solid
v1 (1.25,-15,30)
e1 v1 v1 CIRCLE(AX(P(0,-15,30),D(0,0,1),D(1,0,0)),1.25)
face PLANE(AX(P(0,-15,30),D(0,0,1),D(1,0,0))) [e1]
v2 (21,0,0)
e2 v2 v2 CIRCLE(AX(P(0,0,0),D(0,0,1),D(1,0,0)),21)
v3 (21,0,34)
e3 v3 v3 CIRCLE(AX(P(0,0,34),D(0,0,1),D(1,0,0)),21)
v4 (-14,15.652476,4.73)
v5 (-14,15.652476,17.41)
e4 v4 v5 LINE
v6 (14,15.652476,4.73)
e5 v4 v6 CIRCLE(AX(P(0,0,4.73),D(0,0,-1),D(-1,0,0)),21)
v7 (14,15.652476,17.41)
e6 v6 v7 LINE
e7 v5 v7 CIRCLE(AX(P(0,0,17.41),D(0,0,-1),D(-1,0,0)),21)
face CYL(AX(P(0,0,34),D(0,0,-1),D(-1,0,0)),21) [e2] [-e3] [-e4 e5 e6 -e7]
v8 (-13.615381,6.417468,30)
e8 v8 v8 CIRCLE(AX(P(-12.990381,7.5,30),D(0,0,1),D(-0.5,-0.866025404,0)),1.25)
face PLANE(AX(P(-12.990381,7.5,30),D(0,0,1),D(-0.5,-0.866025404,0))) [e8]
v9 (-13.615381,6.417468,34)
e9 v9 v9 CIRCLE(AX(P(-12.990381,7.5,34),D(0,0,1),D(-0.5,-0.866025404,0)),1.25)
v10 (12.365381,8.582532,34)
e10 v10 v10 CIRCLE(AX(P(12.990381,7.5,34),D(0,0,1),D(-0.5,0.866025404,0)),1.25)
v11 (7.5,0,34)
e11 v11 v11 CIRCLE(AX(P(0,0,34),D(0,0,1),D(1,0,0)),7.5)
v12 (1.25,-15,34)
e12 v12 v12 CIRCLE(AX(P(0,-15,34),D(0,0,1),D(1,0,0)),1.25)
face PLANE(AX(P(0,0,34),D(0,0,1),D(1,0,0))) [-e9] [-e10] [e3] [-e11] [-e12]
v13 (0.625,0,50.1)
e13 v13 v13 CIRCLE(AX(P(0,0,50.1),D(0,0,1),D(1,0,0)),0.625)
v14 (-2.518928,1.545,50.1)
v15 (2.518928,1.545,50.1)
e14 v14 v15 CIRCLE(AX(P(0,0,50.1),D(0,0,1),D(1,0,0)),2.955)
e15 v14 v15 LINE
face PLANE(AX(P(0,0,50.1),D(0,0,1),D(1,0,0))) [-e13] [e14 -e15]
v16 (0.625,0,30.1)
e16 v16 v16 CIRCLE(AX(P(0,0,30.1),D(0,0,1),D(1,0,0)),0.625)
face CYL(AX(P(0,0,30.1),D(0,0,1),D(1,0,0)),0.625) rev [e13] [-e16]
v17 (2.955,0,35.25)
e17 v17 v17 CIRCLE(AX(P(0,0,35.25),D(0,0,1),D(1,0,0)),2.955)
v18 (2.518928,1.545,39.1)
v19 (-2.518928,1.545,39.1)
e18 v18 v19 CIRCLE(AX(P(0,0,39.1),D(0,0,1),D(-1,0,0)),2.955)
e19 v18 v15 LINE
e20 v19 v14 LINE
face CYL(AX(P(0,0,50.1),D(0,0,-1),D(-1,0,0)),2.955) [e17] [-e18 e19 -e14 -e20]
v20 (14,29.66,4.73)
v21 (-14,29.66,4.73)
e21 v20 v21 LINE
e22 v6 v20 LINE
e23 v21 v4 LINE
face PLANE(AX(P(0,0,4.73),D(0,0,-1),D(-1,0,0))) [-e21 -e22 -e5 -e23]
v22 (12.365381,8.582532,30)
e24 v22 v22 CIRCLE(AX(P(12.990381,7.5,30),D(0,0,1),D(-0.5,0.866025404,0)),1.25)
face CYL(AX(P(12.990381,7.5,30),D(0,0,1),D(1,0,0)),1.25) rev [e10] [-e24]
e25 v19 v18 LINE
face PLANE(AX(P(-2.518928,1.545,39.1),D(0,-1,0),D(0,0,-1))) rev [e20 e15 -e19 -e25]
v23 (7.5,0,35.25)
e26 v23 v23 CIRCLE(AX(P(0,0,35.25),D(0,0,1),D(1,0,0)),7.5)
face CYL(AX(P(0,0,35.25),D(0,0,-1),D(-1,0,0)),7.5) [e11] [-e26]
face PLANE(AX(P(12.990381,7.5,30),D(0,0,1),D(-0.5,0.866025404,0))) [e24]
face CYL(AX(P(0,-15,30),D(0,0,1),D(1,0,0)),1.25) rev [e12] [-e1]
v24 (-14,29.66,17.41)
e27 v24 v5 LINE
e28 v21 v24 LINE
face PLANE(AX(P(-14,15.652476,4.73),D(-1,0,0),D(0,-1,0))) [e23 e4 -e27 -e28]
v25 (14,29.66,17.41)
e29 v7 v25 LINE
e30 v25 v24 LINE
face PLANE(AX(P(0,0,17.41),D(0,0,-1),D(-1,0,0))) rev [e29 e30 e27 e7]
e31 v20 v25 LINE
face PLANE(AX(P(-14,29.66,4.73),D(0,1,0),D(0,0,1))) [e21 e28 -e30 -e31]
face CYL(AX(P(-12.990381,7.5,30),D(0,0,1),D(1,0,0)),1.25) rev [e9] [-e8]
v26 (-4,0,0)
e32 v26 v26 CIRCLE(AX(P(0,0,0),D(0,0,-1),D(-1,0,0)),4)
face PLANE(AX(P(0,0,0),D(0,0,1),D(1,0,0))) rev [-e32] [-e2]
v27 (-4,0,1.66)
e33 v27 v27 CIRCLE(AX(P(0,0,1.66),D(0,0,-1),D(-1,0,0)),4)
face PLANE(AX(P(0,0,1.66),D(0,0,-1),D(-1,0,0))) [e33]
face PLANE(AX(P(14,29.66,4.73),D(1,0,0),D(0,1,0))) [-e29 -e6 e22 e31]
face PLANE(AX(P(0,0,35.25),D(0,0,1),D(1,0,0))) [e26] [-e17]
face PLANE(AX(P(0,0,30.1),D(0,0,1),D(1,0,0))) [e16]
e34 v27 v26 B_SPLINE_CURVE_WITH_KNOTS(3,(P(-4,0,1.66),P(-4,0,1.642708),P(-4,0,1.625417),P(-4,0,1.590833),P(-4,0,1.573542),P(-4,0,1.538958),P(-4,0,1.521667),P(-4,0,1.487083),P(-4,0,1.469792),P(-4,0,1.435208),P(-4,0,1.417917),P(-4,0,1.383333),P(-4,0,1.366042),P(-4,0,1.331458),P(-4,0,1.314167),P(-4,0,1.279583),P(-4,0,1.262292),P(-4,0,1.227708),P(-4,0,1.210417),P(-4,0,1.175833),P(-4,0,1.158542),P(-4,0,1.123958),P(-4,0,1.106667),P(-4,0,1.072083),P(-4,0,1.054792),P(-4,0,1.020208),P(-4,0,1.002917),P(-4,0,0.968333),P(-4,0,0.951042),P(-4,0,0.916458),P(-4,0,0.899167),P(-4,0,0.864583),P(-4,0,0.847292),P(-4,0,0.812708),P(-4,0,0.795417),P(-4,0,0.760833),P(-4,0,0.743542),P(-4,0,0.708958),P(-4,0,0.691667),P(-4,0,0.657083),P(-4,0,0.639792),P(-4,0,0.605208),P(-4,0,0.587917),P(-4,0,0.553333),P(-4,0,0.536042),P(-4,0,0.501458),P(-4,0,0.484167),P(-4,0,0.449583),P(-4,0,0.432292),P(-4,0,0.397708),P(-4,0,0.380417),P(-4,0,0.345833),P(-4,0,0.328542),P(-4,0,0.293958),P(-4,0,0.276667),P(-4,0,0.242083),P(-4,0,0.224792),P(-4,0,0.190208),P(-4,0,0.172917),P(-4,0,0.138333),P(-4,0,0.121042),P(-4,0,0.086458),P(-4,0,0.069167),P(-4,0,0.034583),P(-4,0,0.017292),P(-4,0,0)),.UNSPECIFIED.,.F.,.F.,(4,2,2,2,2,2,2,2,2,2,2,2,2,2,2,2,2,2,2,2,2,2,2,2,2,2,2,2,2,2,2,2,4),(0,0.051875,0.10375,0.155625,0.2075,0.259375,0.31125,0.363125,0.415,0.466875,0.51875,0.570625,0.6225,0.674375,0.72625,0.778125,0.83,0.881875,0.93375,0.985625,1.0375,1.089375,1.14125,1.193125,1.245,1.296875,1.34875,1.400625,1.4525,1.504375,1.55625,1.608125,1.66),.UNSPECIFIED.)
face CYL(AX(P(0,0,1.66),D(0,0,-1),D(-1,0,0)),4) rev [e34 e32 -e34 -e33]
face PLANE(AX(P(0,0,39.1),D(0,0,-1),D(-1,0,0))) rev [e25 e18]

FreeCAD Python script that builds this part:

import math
import FreeCAD as App
import Part
import Sketcher

V = App.Vector

doc = App.newDocument("Part")
params = doc.addObject("Spreadsheet::Sheet", "Params")
for row, (alias, value) in enumerate([
    ("sketch1_diameter", "42 mm"),
    ("pad1_length", "34 mm"),
    ("sketch2_diameter", "15 mm"),
    ("pad2_length", "1.25 mm"),
    ("sketch3_diameter", "5.91 mm"),
    ("pad3_length", "14.85 mm"),
    ("pocket1_length", "11 mm"),
    ("sketch5_diameter", "1.25 mm"),
    ("pocket2_length", "20 mm"),
    ("sketch6_diameter", "2.5 mm"),
    ("pocket3_length", "4 mm"),
    ("sketch7_radius", "21 mm"),
    ("sketch7_width", "28 mm"),
    ("pad4_length", "12.68 mm"),
    ("sketch8_diameter", "8 mm"),
    ("pocket4_length", "1.66 mm"),
], start=1):
    params.set(f"A{row}", alias)
    params.set(f"B{row}", "=" + value)
    params.setAlias(f"B{row}", alias)

body = doc.addObject("PartDesign::Body", "Body")

sketch1 = doc.addObject("Sketcher::SketchObject", "Sketch")
body.addObject(sketch1)
sketch1.AttachmentSupport = (doc.XY_Plane, [""])
sketch1.MapMode = "FlatFace"
sketch1.addGeometry(Part.Circle(V(0, 0, 0), V(0, 0, 1), 21), False)
sketch1.addConstraint([
    Sketcher.Constraint("Coincident", 0, 3, -1, 1),
    Sketcher.Constraint("Diameter", 0, 42.0),
])
sketch1.setExpression("Constraints[1]", "Params.sketch1_diameter")
pad1 = doc.addObject("PartDesign::Pad", "Pad")
body.addObject(pad1)
pad1.Profile = sketch1
pad1.setExpression("Length", "Params.pad1_length")

sketch2 = doc.addObject("Sketcher::SketchObject", "Sketch001")
body.addObject(sketch2)
sketch2.AttachmentSupport = (doc.XY_Plane, [""])
sketch2.MapMode = "FlatFace"
sketch2.AttachmentOffset = App.Placement(V(0, 0, 34), App.Rotation())
sketch2.addGeometry(Part.Circle(V(0, 0, 0), V(0, 0, 1), 8), False)
sketch2.addConstraint([
    Sketcher.Constraint("Coincident", 0, 3, -1, 1),
    Sketcher.Constraint("Diameter", 0, 15.0),
])
sketch2.setExpression("Constraints[1]", "Params.sketch2_diameter")
pad2 = doc.addObject("PartDesign::Pad", "Pad001")
body.addObject(pad2)
pad2.Profile = sketch2
pad2.setExpression("Length", "Params.pad2_length")

sketch3 = doc.addObject("Sketcher::SketchObject", "Sketch002")
body.addObject(sketch3)
sketch3.AttachmentSupport = (doc.XY_Plane, [""])
sketch3.MapMode = "FlatFace"
sketch3.AttachmentOffset = App.Placement(V(0, 0, 35.25), App.Rotation())
sketch3.addGeometry(Part.Circle(V(0, 0, 0), V(0, 0, 1), 3), False)
sketch3.addConstraint([
    Sketcher.Constraint("Coincident", 0, 3, -1, 1),
    Sketcher.Constraint("Diameter", 0, 5.91),
])
sketch3.setExpression("Constraints[1]", "Params.sketch3_diameter")
pad3 = doc.addObject("PartDesign::Pad", "Pad002")
body.addObject(pad3)
pad3.Profile = sketch3
pad3.setExpression("Length", "Params.pad3_length")

sketch4 = doc.addObject("Sketcher::SketchObject", "Sketch003")
body.addObject(sketch4)
sketch4.AttachmentSupport = (doc.XY_Plane, [""])
sketch4.MapMode = "FlatFace"
sketch4.AttachmentOffset = App.Placement(V(0, 0, 39.1), App.Rotation())
sketch4.addGeometry([
    Part.LineSegment(V(-2.5, 1.5, 0), V(2.5, 1.5, 0)),
    Part.ArcOfCircle(Part.Circle(V(0, 0, 0), V(0, 0, 1), 3), math.radians(32), math.radians(148)),
], False)
sketch4.addConstraint([
    Sketcher.Constraint("Coincident", 0, 1, 1, 2),
    Sketcher.Constraint("Coincident", 1, 1, 0, 2),
    Sketcher.Constraint("Horizontal", 0),
    Sketcher.Constraint("Coincident", 1, 3, -1, 1),
    Sketcher.Constraint("Radius", 1, 2.955),
    Sketcher.Constraint("DistanceY", -1, 1, 0, 1, 1.545),
])
pocket1 = doc.addObject("PartDesign::Pocket", "Pocket")
body.addObject(pocket1)
pocket1.Profile = sketch4
pocket1.setExpression("Length", "Params.pocket1_length")
pocket1.Reversed = True

sketch5 = doc.addObject("Sketcher::SketchObject", "Sketch004")
body.addObject(sketch5)
sketch5.AttachmentSupport = (doc.XY_Plane, [""])
sketch5.MapMode = "FlatFace"
sketch5.AttachmentOffset = App.Placement(V(0, 0, 50.1), App.Rotation())
sketch5.addGeometry(Part.Circle(V(0, 0, 0), V(0, 0, 1), 0.6), False)
sketch5.addConstraint([
    Sketcher.Constraint("Coincident", 0, 3, -1, 1),
    Sketcher.Constraint("Diameter", 0, 1.25),
])
sketch5.setExpression("Constraints[1]", "Params.sketch5_diameter")
pocket2 = doc.addObject("PartDesign::Pocket", "Pocket001")
body.addObject(pocket2)
pocket2.Profile = sketch5
pocket2.setExpression("Length", "Params.pocket2_length")

sketch6 = doc.addObject("Sketcher::SketchObject", "Sketch005")
body.addObject(sketch6)
sketch6.AttachmentSupport = (doc.XY_Plane, [""])
sketch6.MapMode = "FlatFace"
sketch6.AttachmentOffset = App.Placement(V(0, 0, 34), App.Rotation())
sketch6.addGeometry(Part.Circle(V(0, -15, 0), V(0, 0, 1), 1.2), False)
sketch6.addConstraint([
    Sketcher.Constraint("PointOnObject", 0, 3, -2),
    Sketcher.Constraint("Diameter", 0, 2.5),
    Sketcher.Constraint("DistanceY", 0, 3, -1, 1, 15.0),
])
sketch6.setExpression("Constraints[1]", "Params.sketch6_diameter")
pocket3 = doc.addObject("PartDesign::Pocket", "Pocket002")
body.addObject(pocket3)
pocket3.Profile = sketch6
pocket3.setExpression("Length", "Params.pocket3_length")
doc.recompute()

polarpattern = doc.addObject("PartDesign::PolarPattern", "PolarPattern")
body.addObject(polarpattern)
polarpattern.Originals = [pocket3]
polarpattern.Axis = (doc.Z_Axis, [""])
polarpattern.Angle = 360
polarpattern.Occurrences = 3
body.Tip = polarpattern

sketch7 = doc.addObject("Sketcher::SketchObject", "Sketch006")
body.addObject(sketch7)
sketch7.AttachmentSupport = (doc.XY_Plane, [""])
sketch7.MapMode = "FlatFace"
sketch7.AttachmentOffset = App.Placement(V(0, 0, 4.73), App.Rotation())
sketch7.addGeometry([
    Part.LineSegment(V(-14, 30, 0), V(-14, 16, 0)),
    Part.ArcOfCircle(Part.Circle(V(0, 0, 0), V(0, 0, 1), 21), math.radians(48), math.radians(132)),
    Part.LineSegment(V(14, 16, 0), V(14, 30, 0)),
    Part.LineSegment(V(14, 30, 0), V(-14, 30, 0)),
], False)
sketch7.addConstraint([
    Sketcher.Constraint("Coincident", 0, 2, 1, 2),
    Sketcher.Constraint("Coincident", 1, 1, 2, 1),
    Sketcher.Constraint("Coincident", 2, 2, 3, 1),
    Sketcher.Constraint("Coincident", 3, 2, 0, 1),
    Sketcher.Constraint("Vertical", 0),
    Sketcher.Constraint("Vertical", 2),
    Sketcher.Constraint("Horizontal", 3),
    Sketcher.Constraint("Coincident", 1, 3, -1, 1),
    Sketcher.Constraint("Horizontal", 0, 2, 1, 1),
    Sketcher.Constraint("Radius", 1, 21.0),
    Sketcher.Constraint("DistanceX", 3, 2, 3, 1, 28.0),
    Sketcher.Constraint("DistanceY", -1, 1, 2, 2, 29.66),
])
sketch7.setExpression("Constraints[9]", "Params.sketch7_radius")
sketch7.setExpression("Constraints[10]", "Params.sketch7_width")
pad4 = doc.addObject("PartDesign::Pad", "Pad003")
body.addObject(pad4)
pad4.Profile = sketch7
pad4.setExpression("Length", "Params.pad4_length")

sketch8 = doc.addObject("Sketcher::SketchObject", "Sketch007")
body.addObject(sketch8)
sketch8.AttachmentSupport = (doc.XY_Plane, [""])
sketch8.MapMode = "FlatFace"
sketch8.addGeometry(Part.Circle(V(0, 0, 0), V(0, 0, 1), 4), False)
sketch8.addConstraint([
    Sketcher.Constraint("Coincident", 0, 3, -1, 1),
    Sketcher.Constraint("Diameter", 0, 8.0),
])
sketch8.setExpression("Constraints[1]", "Params.sketch8_diameter")
pocket4 = doc.addObject("PartDesign::Pocket", "Pocket003")
body.addObject(pocket4)
pocket4.Profile = sketch8
pocket4.setExpression("Length", "Params.pocket4_length")
pocket4.Reversed = True

doc.recompute()
